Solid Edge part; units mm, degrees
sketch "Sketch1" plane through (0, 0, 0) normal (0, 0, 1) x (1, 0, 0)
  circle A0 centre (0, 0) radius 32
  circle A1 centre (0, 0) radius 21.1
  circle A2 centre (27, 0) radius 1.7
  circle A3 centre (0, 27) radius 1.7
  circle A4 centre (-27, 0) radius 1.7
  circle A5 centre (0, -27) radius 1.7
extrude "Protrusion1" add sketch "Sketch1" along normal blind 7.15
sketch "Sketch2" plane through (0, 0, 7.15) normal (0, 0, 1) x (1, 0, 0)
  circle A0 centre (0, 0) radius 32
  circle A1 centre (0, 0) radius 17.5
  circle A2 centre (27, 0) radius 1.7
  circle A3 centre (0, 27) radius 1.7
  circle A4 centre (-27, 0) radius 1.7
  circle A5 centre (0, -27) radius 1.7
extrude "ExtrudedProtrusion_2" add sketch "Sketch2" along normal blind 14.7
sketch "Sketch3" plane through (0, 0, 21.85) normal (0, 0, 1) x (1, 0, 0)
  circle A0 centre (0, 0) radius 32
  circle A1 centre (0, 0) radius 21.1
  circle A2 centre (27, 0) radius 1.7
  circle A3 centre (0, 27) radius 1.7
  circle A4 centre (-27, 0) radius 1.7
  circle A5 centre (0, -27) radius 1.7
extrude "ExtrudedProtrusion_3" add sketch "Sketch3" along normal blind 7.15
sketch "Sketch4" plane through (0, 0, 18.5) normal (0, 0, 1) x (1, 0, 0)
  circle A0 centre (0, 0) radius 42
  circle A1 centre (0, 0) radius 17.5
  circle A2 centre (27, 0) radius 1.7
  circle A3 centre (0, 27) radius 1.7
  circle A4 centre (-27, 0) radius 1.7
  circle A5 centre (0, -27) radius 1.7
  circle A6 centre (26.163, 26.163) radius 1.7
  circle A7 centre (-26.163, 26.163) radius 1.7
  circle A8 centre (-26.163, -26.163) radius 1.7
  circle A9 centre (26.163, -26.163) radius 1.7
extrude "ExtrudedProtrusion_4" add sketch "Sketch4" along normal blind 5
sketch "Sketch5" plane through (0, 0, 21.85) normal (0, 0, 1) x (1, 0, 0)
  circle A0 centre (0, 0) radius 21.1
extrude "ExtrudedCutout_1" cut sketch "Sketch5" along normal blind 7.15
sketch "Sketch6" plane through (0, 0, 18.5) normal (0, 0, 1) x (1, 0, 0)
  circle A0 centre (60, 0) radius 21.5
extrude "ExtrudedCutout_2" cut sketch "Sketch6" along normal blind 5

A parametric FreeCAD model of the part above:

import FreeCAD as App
import Part
import Sketcher
from FreeCAD import Vector

doc = App.newDocument("Part")
params = doc.addObject("Spreadsheet::Sheet", "Params")
for row, (alias, value) in enumerate([
    ("sketch1_diameter", "64 mm"),
    ("sketch1_diameter2", "3.4 mm"),
    ("sketch1_diameter3", "42.2 mm"),
    ("pad1_length", "7.15 mm"),
    ("sketch2_diameter", "64 mm"),
    ("sketch2_diameter2", "35 mm"),
    ("sketch2_diameter3", "3.4 mm"),
    ("pad2_length", "14.7 mm"),
    ("sketch3_diameter", "64 mm"),
    ("sketch3_diameter2", "3.4 mm"),
    ("sketch3_diameter3", "42.2 mm"),
    ("pad3_length", "7.15 mm"),
    ("sketch4_diameter", "84 mm"),
    ("sketch4_diameter2", "35 mm"),
    ("sketch4_diameter3", "3.4 mm"),
    ("pad4_length", "5 mm"),
    ("sketch5_diameter", "42.2 mm"),
    ("pocket1_length", "7.15 mm"),
    ("sketch6_diameter", "43 mm"),
    ("pocket2_length", "5 mm"),
], start=1):
    params.set(f"A{row}", alias)
    params.set(f"B{row}", "=" + value)
    params.setAlias(f"B{row}", alias)

body = doc.addObject("PartDesign::Body", "Body")

# Sketch on XY plane
sketch1 = doc.addObject("Sketcher::SketchObject", "Sketch")
body.addObject(sketch1)
sketch1.AttachmentSupport = (doc.XY_Plane, [""])
sketch1.MapMode = "FlatFace"
sketch1.addGeometry(Part.Circle(Vector(0, 0, 0), Vector(0, 0, 1), 32), False)
sketch1.addGeometry(Part.Circle(Vector(0, -27, 0), Vector(0, 0, 1), 1.7), False)
sketch1.addGeometry(Part.Circle(Vector(-27, 0, 0), Vector(0, 0, 1), 1.7), False)
sketch1.addGeometry(Part.Circle(Vector(0, 0, 0), Vector(0, 0, 1), 21.1), False)
sketch1.addGeometry(Part.Circle(Vector(27, 0, 0), Vector(0, 0, 1), 1.7), False)
sketch1.addGeometry(Part.Circle(Vector(0, 27, 0), Vector(0, 0, 1), 1.7), False)
sketch1.addConstraint(Sketcher.Constraint("Coincident", 0, 3, -1, 1))
sketch1.addConstraint(Sketcher.Constraint("Coincident", 3, 3, -1, 1))
sketch1.addConstraint(Sketcher.Constraint("Equal", 1, 2))
sketch1.addConstraint(Sketcher.Constraint("Equal", 2, 4))
sketch1.addConstraint(Sketcher.Constraint("Equal", 4, 5))
sketch1.addConstraint(Sketcher.Constraint("Symmetric", 2, 3, 4, 3, -1, 1))
sketch1.addConstraint(Sketcher.Constraint("Symmetric", 1, 3, 5, 3, -1, 1))
sketch1.addConstraint(Sketcher.Constraint("PointOnObject", 1, 3, -2))
sketch1.addConstraint(Sketcher.Constraint("PointOnObject", 2, 3, -1))
sketch1.addConstraint(Sketcher.Constraint("Diameter", 0, 64.0))
sketch1.addConstraint(Sketcher.Constraint("Diameter", 1, 3.4))
sketch1.addConstraint(Sketcher.Constraint("Diameter", 3, 42.2))
sketch1.addConstraint(Sketcher.Constraint("DistanceY", 1, 3, -1, 1, 27.0))
sketch1.addConstraint(Sketcher.Constraint("DistanceX", 2, 3, -1, 1, 27.0))
sketch1.setExpression("Constraints[9]", "Params.sketch1_diameter")
sketch1.setExpression("Constraints[10]", "Params.sketch1_diameter2")
sketch1.setExpression("Constraints[11]", "Params.sketch1_diameter3")
pad1 = doc.addObject("PartDesign::Pad", "Pad")
body.addObject(pad1)
pad1.Profile = sketch1
pad1.setExpression("Length", "Params.pad1_length")

# Sketch on XY plane
sketch2 = doc.addObject("Sketcher::SketchObject", "Sketch001")
body.addObject(sketch2)
sketch2.AttachmentSupport = (doc.XY_Plane, [""])
sketch2.MapMode = "FlatFace"
sketch2.AttachmentOffset = App.Placement(Vector(0, 0, 7.15), App.Rotation())
sketch2.addGeometry(Part.Circle(Vector(0, 0, 0), Vector(0, 0, 1), 32), False)
sketch2.addGeometry(Part.Circle(Vector(0, -27, 0), Vector(0, 0, 1), 1.7), False)
sketch2.addGeometry(Part.Circle(Vector(-27, 0, 0), Vector(0, 0, 1), 1.7), False)
sketch2.addGeometry(Part.Circle(Vector(0, 0, 0), Vector(0, 0, 1), 17.5), False)
sketch2.addGeometry(Part.Circle(Vector(27, 0, 0), Vector(0, 0, 1), 1.7), False)
sketch2.addGeometry(Part.Circle(Vector(0, 27, 0), Vector(0, 0, 1), 1.7), False)
sketch2.addConstraint(Sketcher.Constraint("Coincident", 0, 3, -1, 1))
sketch2.addConstraint(Sketcher.Constraint("Coincident", 3, 3, -1, 1))
sketch2.addConstraint(Sketcher.Constraint("Equal", 1, 2))
sketch2.addConstraint(Sketcher.Constraint("Equal", 2, 4))
sketch2.addConstraint(Sketcher.Constraint("Equal", 4, 5))
sketch2.addConstraint(Sketcher.Constraint("Symmetric", 2, 3, 4, 3, -1, 1))
sketch2.addConstraint(Sketcher.Constraint("Symmetric", 1, 3, 5, 3, -1, 1))
sketch2.addConstraint(Sketcher.Constraint("PointOnObject", 1, 3, -2))
sketch2.addConstraint(Sketcher.Constraint("PointOnObject", 2, 3, -1))
sketch2.addConstraint(Sketcher.Constraint("Diameter", 0, 64.0))
sketch2.addConstraint(Sketcher.Constraint("Diameter", 3, 35.0))
sketch2.addConstraint(Sketcher.Constraint("Diameter", 1, 3.4))
sketch2.addConstraint(Sketcher.Constraint("DistanceY", 1, 3, -1, 1, 27.0))
sketch2.addConstraint(Sketcher.Constraint("DistanceX", 2, 3, -1, 1, 27.0))
sketch2.setExpression("Constraints[9]", "Params.sketch2_diameter")
sketch2.setExpression("Constraints[10]", "Params.sketch2_diameter2")
sketch2.setExpression("Constraints[11]", "Params.sketch2_diameter3")
pad2 = doc.addObject("PartDesign::Pad", "Pad001")
body.addObject(pad2)
pad2.Profile = sketch2
pad2.setExpression("Length", "Params.pad2_length")

# Sketch on XY plane
sketch3 = doc.addObject("Sketcher::SketchObject", "Sketch002")
body.addObject(sketch3)
sketch3.AttachmentSupport = (doc.XY_Plane, [""])
sketch3.MapMode = "FlatFace"
sketch3.AttachmentOffset = App.Placement(Vector(0, 0, 21.85), App.Rotation())
sketch3.addGeometry(Part.Circle(Vector(0, 0, 0), Vector(0, 0, 1), 32), False)
sketch3.addGeometry(Part.Circle(Vector(0, -27, 0), Vector(0, 0, 1), 1.7), False)
sketch3.addGeometry(Part.Circle(Vector(-27, 0, 0), Vector(0, 0, 1), 1.7), False)
sketch3.addGeometry(Part.Circle(Vector(0, 0, 0), Vector(0, 0, 1), 21.1), False)
sketch3.addGeometry(Part.Circle(Vector(27, 0, 0), Vector(0, 0, 1), 1.7), False)
sketch3.addGeometry(Part.Circle(Vector(0, 27, 0), Vector(0, 0, 1), 1.7), False)
sketch3.addConstraint(Sketcher.Constraint("Coincident", 0, 3, -1, 1))
sketch3.addConstraint(Sketcher.Constraint("Coincident", 3, 3, -1, 1))
sketch3.addConstraint(Sketcher.Constraint("Equal", 1, 2))
sketch3.addConstraint(Sketcher.Constraint("Equal", 2, 4))
sketch3.addConstraint(Sketcher.Constraint("Equal", 4, 5))
sketch3.addConstraint(Sketcher.Constraint("Symmetric", 2, 3, 4, 3, -1, 1))
sketch3.addConstraint(Sketcher.Constraint("Symmetric", 1, 3, 5, 3, -1, 1))
sketch3.addConstraint(Sketcher.Constraint("PointOnObject", 1, 3, -2))
sketch3.addConstraint(Sketcher.Constraint("PointOnObject", 2, 3, -1))
sketch3.addConstraint(Sketcher.Constraint("Diameter", 0, 64.0))
sketch3.addConstraint(Sketcher.Constraint("Diameter", 1, 3.4))
sketch3.addConstraint(Sketcher.Constraint("Diameter", 3, 42.2))
sketch3.addConstraint(Sketcher.Constraint("DistanceY", 1, 3, -1, 1, 27.0))
sketch3.addConstraint(Sketcher.Constraint("DistanceX", 2, 3, -1, 1, 27.0))
sketch3.setExpression("Constraints[9]", "Params.sketch3_diameter")
sketch3.setExpression("Constraints[10]", "Params.sketch3_diameter2")
sketch3.setExpression("Constraints[11]", "Params.sketch3_diameter3")
pad3 = doc.addObject("PartDesign::Pad", "Pad002")
body.addObject(pad3)
pad3.Profile = sketch3
pad3.setExpression("Length", "Params.pad3_length")

# Sketch on XY plane
sketch4 = doc.addObject("Sketcher::SketchObject", "Sketch003")
body.addObject(sketch4)
sketch4.AttachmentSupport = (doc.XY_Plane, [""])
sketch4.MapMode = "FlatFace"
sketch4.AttachmentOffset = App.Placement(Vector(0, 0, 18.5), App.Rotation())
sketch4.addGeometry(Part.Circle(Vector(0, 0, 0), Vector(0, 0, 1), 42), False)
sketch4.addGeometry(Part.Circle(Vector(-26.2, -26.2, 0), Vector(0, 0, 1), 1.7), False)
sketch4.addGeometry(Part.Circle(Vector(0, -27, 0), Vector(0, 0, 1), 1.7), False)
sketch4.addGeometry(Part.Circle(Vector(26.2, -26.2, 0), Vector(0, 0, 1), 1.7), False)
sketch4.addGeometry(Part.Circle(Vector(-27, 0, 0), Vector(0, 0, 1), 1.7), False)
sketch4.addGeometry(Part.Circle(Vector(-26.2, 26.2, 0), Vector(0, 0, 1), 1.7), False)
sketch4.addGeometry(Part.Circle(Vector(0, 0, 0), Vector(0, 0, 1), 17.5), False)
sketch4.addGeometry(Part.Circle(Vector(27, 0, 0), Vector(0, 0, 1), 1.7), False)
sketch4.addGeometry(Part.Circle(Vector(0, 27, 0), Vector(0, 0, 1), 1.7), False)
sketch4.addGeometry(Part.Circle(Vector(26.2, 26.2, 0), Vector(0, 0, 1), 1.7), False)
sketch4.addConstraint(Sketcher.Constraint("Coincident", 0, 3, -1, 1))
sketch4.addConstraint(Sketcher.Constraint("Coincident", 6, 3, -1, 1))
sketch4.addConstraint(Sketcher.Constraint("Equal", 1, 2))
sketch4.addConstraint(Sketcher.Constraint("Equal", 2, 3))
sketch4.addConstraint(Sketcher.Constraint("Equal", 3, 4))
sketch4.addConstraint(Sketcher.Constraint("Equal", 4, 5))
sketch4.addConstraint(Sketcher.Constraint("Equal", 5, 7))
sketch4.addConstraint(Sketcher.Constraint("Equal", 7, 8))
sketch4.addConstraint(Sketcher.Constraint("Equal", 8, 9))
sketch4.addConstraint(Sketcher.Constraint("Symmetric", 3, 3, 5, 3, -1, 1))
sketch4.addConstraint(Sketcher.Constraint("Symmetric", 4, 3, 7, 3, -1, 1))
sketch4.addConstraint(Sketcher.Constraint("Symmetric", 2, 3, 8, 3, -1, 1))
sketch4.addConstraint(Sketcher.Constraint("Symmetric", 1, 3, 9, 3, -1, 1))
sketch4.addConstraint(Sketcher.Constraint("Symmetric", 1, 3, 3, 3, -2))
sketch4.addConstraint(Sketcher.Constraint("PointOnObject", 2, 3, -2))
sketch4.addConstraint(Sketcher.Constraint("PointOnObject", 4, 3, -1))
sketch4.addConstraint(Sketcher.Constraint("Diameter", 0, 84.0))
sketch4.addConstraint(Sketcher.Constraint("Diameter", 6, 35.0))
sketch4.addConstraint(Sketcher.Constraint("Diameter", 1, 3.4))
sketch4.addConstraint(Sketcher.Constraint("DistanceY", 2, 3, -1, 1, 27.0))
sketch4.addConstraint(Sketcher.Constraint("DistanceX", 4, 3, -1, 1, 27.0))
sketch4.addConstraint(Sketcher.Constraint("DistanceX", 1, 3, -1, 1, 26.163))
sketch4.addConstraint(Sketcher.Constraint("DistanceY", 1, 3, -1, 1, 26.163))
sketch4.setExpression("Constraints[16]", "Params.sketch4_diameter")
sketch4.setExpression("Constraints[17]", "Params.sketch4_diameter2")
sketch4.setExpression("Constraints[18]", "Params.sketch4_diameter3")
pad4 = doc.addObject("PartDesign::Pad", "Pad003")
body.addObject(pad4)
pad4.Profile = sketch4
pad4.setExpression("Length", "Params.pad4_length")

# Sketch on XY plane
sketch5 = doc.addObject("Sketcher::SketchObject", "Sketch004")
body.addObject(sketch5)
sketch5.AttachmentSupport = (doc.XY_Plane, [""])
sketch5.MapMode = "FlatFace"
sketch5.AttachmentOffset = App.Placement(Vector(0, 0, 21.85), App.Rotation())
sketch5.addGeometry(Part.Circle(Vector(0, 0, 0), Vector(0, 0, 1), 21), False)
sketch5.addConstraint(Sketcher.Constraint("Coincident", 0, 3, -1, 1))
sketch5.addConstraint(Sketcher.Constraint("Diameter", 0, 42.2))
sketch5.setExpression("Constraints[1]", "Params.sketch5_diameter")
pocket1 = doc.addObject("PartDesign::Pocket", "Pocket")
body.addObject(pocket1)
pocket1.Profile = sketch5
pocket1.setExpression("Length", "Params.pocket1_length")
pocket1.Reversed = True

# Sketch on XY plane
sketch6 = doc.addObject("Sketcher::SketchObject", "Sketch005")
body.addObject(sketch6)
sketch6.AttachmentSupport = (doc.XY_Plane, [""])
sketch6.MapMode = "FlatFace"
sketch6.AttachmentOffset = App.Placement(Vector(0, 0, 18.5), App.Rotation())
sketch6.addGeometry(Part.Circle(Vector(60, 0, 0), Vector(0, 0, 1), 22), False)
sketch6.addConstraint(Sketcher.Constraint("PointOnObject", 0, 3, -1))
sketch6.addConstraint(Sketcher.Constraint("Diameter", 0, 43.0))
sketch6.addConstraint(Sketcher.Constraint("DistanceX", -1, 1, 0, 3, 60.0))
sketch6.setExpression("Constraints[1]", "Params.sketch6_diameter")
pocket2 = doc.addObject("PartDesign::Pocket", "Pocket001")
body.addObject(pocket2)
pocket2.Profile = sketch6
pocket2.setExpression("Length", "Params.pocket2_length")
pocket2.Reversed = True

doc.recompute()
